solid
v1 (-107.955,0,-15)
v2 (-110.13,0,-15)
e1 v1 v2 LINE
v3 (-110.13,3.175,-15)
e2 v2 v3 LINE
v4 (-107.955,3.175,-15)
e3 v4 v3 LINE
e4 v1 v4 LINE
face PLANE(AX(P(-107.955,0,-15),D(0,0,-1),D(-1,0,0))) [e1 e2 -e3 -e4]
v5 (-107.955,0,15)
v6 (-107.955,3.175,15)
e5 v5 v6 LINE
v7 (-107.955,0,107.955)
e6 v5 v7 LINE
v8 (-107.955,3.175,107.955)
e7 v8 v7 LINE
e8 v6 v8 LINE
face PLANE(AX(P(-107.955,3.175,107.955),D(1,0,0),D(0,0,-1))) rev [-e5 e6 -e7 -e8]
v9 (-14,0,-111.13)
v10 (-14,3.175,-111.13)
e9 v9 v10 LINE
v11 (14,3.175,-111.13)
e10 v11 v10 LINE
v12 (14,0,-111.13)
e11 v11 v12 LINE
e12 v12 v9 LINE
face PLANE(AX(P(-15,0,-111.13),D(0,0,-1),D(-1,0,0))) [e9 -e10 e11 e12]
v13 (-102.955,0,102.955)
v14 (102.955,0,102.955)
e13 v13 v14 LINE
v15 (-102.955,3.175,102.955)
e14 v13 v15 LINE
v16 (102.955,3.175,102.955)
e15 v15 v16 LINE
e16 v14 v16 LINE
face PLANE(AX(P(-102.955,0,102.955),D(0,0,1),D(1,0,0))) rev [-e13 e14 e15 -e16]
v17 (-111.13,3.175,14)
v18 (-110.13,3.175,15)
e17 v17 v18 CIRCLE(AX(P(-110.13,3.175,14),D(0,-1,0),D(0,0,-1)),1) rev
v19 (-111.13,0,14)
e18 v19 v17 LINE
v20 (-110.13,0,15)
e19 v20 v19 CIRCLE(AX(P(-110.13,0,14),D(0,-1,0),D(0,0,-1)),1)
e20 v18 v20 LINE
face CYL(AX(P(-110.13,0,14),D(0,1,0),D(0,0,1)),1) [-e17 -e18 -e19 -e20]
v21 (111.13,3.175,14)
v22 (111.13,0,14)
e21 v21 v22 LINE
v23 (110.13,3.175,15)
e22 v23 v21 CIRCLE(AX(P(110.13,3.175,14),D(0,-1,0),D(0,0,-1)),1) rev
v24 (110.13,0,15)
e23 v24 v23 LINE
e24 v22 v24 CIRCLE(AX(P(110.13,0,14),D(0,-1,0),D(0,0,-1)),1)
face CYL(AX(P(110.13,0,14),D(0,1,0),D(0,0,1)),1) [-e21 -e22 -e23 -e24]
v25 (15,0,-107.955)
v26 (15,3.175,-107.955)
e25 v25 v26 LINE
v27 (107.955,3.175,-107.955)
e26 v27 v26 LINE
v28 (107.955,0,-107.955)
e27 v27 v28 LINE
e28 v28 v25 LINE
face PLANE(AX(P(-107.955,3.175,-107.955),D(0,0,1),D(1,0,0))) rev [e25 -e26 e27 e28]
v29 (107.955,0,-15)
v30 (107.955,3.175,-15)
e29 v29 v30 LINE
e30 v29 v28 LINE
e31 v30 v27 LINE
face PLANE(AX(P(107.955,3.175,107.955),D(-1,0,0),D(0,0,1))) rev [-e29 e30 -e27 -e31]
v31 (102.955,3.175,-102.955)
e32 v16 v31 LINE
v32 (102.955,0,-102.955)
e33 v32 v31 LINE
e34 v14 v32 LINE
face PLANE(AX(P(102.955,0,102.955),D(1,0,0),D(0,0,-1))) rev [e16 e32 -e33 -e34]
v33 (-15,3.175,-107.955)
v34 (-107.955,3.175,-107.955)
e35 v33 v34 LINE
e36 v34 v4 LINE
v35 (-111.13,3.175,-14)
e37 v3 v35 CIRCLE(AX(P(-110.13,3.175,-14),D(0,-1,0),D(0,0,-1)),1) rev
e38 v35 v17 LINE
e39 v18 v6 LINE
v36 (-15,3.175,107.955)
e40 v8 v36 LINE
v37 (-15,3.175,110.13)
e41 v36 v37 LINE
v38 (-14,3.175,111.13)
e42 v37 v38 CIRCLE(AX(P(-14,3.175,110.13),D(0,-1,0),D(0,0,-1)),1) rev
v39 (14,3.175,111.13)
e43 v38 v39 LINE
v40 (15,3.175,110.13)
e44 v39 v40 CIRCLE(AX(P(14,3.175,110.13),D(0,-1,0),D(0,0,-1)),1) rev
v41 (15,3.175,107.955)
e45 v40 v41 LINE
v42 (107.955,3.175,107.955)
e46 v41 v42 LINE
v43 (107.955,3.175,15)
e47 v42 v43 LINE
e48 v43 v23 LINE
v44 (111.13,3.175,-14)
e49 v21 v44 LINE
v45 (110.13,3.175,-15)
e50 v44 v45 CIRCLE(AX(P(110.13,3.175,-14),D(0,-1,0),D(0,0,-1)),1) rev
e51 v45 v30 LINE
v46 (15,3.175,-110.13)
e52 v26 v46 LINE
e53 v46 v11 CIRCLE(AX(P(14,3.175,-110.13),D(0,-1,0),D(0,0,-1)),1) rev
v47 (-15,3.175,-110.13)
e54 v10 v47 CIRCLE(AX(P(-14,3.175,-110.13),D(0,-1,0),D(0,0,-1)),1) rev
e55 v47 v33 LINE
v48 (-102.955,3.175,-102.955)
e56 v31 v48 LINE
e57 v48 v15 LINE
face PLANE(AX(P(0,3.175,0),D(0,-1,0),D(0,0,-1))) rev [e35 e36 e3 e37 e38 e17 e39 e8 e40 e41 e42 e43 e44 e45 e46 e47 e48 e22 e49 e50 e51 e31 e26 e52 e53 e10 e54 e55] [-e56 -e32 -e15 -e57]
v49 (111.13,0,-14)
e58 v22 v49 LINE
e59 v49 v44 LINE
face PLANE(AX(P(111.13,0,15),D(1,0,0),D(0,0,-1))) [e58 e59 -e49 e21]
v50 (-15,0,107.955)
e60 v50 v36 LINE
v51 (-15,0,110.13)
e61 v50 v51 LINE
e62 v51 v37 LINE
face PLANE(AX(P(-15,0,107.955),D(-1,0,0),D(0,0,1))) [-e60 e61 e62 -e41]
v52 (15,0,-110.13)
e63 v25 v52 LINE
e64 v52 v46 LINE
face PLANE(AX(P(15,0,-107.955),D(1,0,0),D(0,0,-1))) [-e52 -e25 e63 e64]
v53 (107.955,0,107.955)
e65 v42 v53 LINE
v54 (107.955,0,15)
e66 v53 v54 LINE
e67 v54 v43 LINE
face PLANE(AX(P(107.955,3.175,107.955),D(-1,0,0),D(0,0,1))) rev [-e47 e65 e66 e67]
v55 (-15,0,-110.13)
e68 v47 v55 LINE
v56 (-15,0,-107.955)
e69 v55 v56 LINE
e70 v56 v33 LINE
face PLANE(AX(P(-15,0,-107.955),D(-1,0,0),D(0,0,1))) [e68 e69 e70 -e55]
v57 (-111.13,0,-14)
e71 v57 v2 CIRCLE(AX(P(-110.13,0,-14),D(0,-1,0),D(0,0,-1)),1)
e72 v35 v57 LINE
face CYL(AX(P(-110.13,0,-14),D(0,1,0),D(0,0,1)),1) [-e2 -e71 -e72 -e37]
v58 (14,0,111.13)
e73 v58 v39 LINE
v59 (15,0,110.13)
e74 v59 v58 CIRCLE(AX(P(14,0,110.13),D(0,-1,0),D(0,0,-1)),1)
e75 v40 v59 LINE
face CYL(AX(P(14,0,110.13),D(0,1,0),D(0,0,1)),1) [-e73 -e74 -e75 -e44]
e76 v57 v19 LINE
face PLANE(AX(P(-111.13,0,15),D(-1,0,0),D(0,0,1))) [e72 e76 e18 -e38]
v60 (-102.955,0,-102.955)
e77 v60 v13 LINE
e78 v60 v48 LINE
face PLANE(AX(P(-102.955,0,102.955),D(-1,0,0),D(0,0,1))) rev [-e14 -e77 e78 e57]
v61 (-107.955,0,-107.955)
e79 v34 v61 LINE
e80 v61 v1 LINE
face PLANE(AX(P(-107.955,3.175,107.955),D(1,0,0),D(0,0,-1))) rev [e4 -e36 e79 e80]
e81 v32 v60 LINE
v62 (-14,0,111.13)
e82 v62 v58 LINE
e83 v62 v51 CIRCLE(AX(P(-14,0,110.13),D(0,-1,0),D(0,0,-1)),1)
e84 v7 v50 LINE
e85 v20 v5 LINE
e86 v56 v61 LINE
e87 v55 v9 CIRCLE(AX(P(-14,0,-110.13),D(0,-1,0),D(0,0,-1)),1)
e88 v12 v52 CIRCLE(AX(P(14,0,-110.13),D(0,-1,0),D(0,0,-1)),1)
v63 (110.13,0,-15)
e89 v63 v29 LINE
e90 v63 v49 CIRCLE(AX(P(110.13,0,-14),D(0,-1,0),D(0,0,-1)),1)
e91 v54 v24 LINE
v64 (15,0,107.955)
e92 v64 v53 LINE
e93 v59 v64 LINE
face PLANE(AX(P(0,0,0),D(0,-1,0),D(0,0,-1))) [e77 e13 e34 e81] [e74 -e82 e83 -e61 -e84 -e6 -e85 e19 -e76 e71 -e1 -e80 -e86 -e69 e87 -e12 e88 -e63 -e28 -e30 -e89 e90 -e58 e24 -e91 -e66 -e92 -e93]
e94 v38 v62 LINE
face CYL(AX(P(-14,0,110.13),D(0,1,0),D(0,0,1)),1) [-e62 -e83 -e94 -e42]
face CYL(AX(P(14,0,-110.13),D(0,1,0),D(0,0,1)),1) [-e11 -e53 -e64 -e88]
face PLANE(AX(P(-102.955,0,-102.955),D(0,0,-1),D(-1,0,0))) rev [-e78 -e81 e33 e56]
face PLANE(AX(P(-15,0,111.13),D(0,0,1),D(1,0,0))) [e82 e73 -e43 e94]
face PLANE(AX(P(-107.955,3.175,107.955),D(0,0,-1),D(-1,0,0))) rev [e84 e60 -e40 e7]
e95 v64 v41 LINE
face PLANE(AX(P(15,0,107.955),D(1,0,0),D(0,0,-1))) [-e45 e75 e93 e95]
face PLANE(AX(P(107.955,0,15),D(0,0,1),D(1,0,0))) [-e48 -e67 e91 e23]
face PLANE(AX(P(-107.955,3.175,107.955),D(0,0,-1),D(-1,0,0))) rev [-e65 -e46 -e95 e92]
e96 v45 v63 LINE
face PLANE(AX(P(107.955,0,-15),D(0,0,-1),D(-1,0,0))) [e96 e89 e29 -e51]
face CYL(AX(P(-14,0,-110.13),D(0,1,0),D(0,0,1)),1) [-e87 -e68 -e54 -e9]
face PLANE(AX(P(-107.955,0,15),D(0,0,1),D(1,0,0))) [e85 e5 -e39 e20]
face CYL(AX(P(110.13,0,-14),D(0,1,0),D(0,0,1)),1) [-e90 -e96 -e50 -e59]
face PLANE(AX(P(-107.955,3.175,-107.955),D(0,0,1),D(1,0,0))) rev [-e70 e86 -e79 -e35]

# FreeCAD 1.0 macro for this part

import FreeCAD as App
import Part
import Sketcher
from FreeCAD import Vector
Q = App.Units.Quantity


def edges_at(feature, points):
    """Names of the edges that pass closest to the given points."""
    edges = feature.Shape.Edges
    near = lambda p: min(range(len(edges)), key=lambda i: edges[i].distToShape(Part.Vertex(*p))[0])
    return sorted({f"Edge{near(p) + 1}" for p in points})


def add_polygon(sketch, points):
    """Adds a closed chain of lines whose ends are joined by coincident constraints."""
    first, n = sketch.GeometryCount, len(points)
    for a, b in zip(points, points[1:] + points[:1]):
        sketch.addGeometry(Part.LineSegment(App.Vector(*a, 0), App.Vector(*b, 0)), False)
    for i in range(n):
        sketch.addConstraint(Sketcher.Constraint("Coincident", first + i, 2, first + (i + 1) % n, 1))

doc = App.newDocument("Part")
params = doc.addObject("Spreadsheet::Sheet", "Params")
for row, (alias, value) in enumerate([
    ("sketch1_width", "215.91 mm"),
    ("pad1_length", "3.175 mm"),
    ("sketch2_width", "205.91 mm"),
    ("sketch3_width", "30 mm"),
    ("pad2_length", "3.175 mm"),
    ("fillet_radius", "1 mm"),
], start=1):
    params.set(f"A{row}", alias)
    params.set(f"B{row}", "=" + value)
    params.setAlias(f"B{row}", alias)

body = doc.addObject("PartDesign::Body", "Body")

sketch1 = body.newObject("Sketcher::SketchObject", "Sketch")
sketch1.AttachmentSupport = (doc.getObject("XZ_Plane"), [""])
sketch1.MapMode = "FlatFace"
add_polygon(sketch1, [(-108, -108), (-108, 108), (108, 108), (108, -108)])
sketch1.addConstraint([
    Sketcher.Constraint("Vertical", 0),
    Sketcher.Constraint("Horizontal", 1),
    Sketcher.Constraint("Vertical", 2),
    Sketcher.Constraint("Horizontal", 3),
    Sketcher.Constraint("Symmetric", 0, 2, 2, 2, -1, 1),
    Sketcher.Constraint("Equal", 3, 0),
    Sketcher.Constraint("DistanceX", 1, 1, 1, 2, Q("215.91 mm")),
])
sketch1.setExpression("Constraints[10]", "Params.sketch1_width")
pad1 = body.newObject("PartDesign::Pad", "Pad")
pad1.Profile = sketch1
pad1.setExpression("Length", "Params.pad1_length")
pad1.Reversed = True

sketch2 = body.newObject("Sketcher::SketchObject", "Sketch001")
sketch2.AttachmentSupport = (doc.getObject("XZ_Plane"), [""])
sketch2.MapMode = "FlatFace"
sketch2.AttachmentOffset = App.Placement(Vector(0, 0, -3.175), App.Rotation())
add_polygon(sketch2, [(-103, -103), (-103, 103), (103, 103), (103, -103)])
sketch2.addConstraint([
    Sketcher.Constraint("Vertical", 0),
    Sketcher.Constraint("Horizontal", 1),
    Sketcher.Constraint("Vertical", 2),
    Sketcher.Constraint("Horizontal", 3),
    Sketcher.Constraint("Symmetric", 0, 2, 2, 2, -1, 1),
    Sketcher.Constraint("Equal", 3, 0),
    Sketcher.Constraint("DistanceX", 1, 1, 1, 2, Q("205.91 mm")),
])
sketch2.setExpression("Constraints[10]", "Params.sketch2_width")
pocket1 = body.newObject("PartDesign::Pocket", "Pocket")
pocket1.Profile = sketch2
pocket1.Type = "ThroughAll"
pocket1.Reversed = True

sketch3 = body.newObject("Sketcher::SketchObject", "Sketch002")
sketch3.AttachmentSupport = (doc.getObject("XZ_Plane"), [""])
sketch3.MapMode = "FlatFace"
sketch3.AttachmentOffset = App.Placement(Vector(0, 0, -3.175), App.Rotation())
add_polygon(sketch3, [(-111.1, -15), (-111.1, 15), (-108, 15), (-108, -15)])
add_polygon(sketch3, [(-15, -111.1), (-15, -108), (15, -108), (15, -111.1)])
add_polygon(sketch3, [(-15, 108), (-15, 111.1), (15, 111.1), (15, 108)])
add_polygon(sketch3, [(108, -15), (108, 15), (111.1, 15), (111.1, -15)])
sketch3.addConstraint([
    Sketcher.Constraint("Vertical", 0),
    Sketcher.Constraint("Horizontal", 1),
    Sketcher.Constraint("Vertical", 2),
    Sketcher.Constraint("Horizontal", 3),
    Sketcher.Constraint("Vertical", 4),
    Sketcher.Constraint("Horizontal", 5),
    Sketcher.Constraint("Vertical", 6),
    Sketcher.Constraint("Horizontal", 7),
    Sketcher.Constraint("Vertical", 8),
    Sketcher.Constraint("Horizontal", 9),
    Sketcher.Constraint("Vertical", 10),
    Sketcher.Constraint("Horizontal", 11),
    Sketcher.Constraint("Vertical", 12),
    Sketcher.Constraint("Horizontal", 13),
    Sketcher.Constraint("Vertical", 14),
    Sketcher.Constraint("Horizontal", 15),
    Sketcher.Constraint("Symmetric", 6, 2, 8, 2, -1, 1),
    Sketcher.Constraint("Symmetric", 4, 2, 10, 2, -1, 1),
    Sketcher.Constraint("Symmetric", 2, 2, 12, 2, -1, 1),
    Sketcher.Constraint("Symmetric", 0, 2, 14, 2, -1, 1),
    Sketcher.Constraint("Horizontal", 1, 2, 12, 2),
    Sketcher.Constraint("Vertical", 7, 2, 8, 2),
    Sketcher.Constraint("Equal", 11, 0),
    Sketcher.Constraint("Equal", 15, 4),
    Sketcher.Constraint("DistanceX", 5, 1, 5, 2, Q("30 mm")),
    Sketcher.Constraint("DistanceX", 1, 1, 1, 2, Q("3.175 mm")),
    Sketcher.Constraint("DistanceX", 0, 2, -1, 1, Q("111.13 mm")),
    Sketcher.Constraint("DistanceY", 6, 2, -1, 1, Q("111.13 mm")),
])
sketch3.setExpression("Constraints[40]", "Params.sketch3_width")
pad2 = body.newObject("PartDesign::Pad", "Pad001")
pad2.Profile = sketch3
pad2.setExpression("Length", "Params.pad2_length")
doc.recompute()

fillet = body.newObject("PartDesign::Fillet", "Fillet")
fillet.Base = (pad2, edges_at(pad2, [
    (-111.13, 1.587, 15),
    (-111.13, 1.587, -15),
    (-15, 1.587, 111.13),
    (15, 1.587, 111.13),
    (-15, 1.587, -111.13),
    (15, 1.587, -111.13),
    (111.13, 1.587, 15),
    (111.13, 1.587, -15),
]))
fillet.setExpression("Radius", "Params.fillet_radius")

doc.recompute()
